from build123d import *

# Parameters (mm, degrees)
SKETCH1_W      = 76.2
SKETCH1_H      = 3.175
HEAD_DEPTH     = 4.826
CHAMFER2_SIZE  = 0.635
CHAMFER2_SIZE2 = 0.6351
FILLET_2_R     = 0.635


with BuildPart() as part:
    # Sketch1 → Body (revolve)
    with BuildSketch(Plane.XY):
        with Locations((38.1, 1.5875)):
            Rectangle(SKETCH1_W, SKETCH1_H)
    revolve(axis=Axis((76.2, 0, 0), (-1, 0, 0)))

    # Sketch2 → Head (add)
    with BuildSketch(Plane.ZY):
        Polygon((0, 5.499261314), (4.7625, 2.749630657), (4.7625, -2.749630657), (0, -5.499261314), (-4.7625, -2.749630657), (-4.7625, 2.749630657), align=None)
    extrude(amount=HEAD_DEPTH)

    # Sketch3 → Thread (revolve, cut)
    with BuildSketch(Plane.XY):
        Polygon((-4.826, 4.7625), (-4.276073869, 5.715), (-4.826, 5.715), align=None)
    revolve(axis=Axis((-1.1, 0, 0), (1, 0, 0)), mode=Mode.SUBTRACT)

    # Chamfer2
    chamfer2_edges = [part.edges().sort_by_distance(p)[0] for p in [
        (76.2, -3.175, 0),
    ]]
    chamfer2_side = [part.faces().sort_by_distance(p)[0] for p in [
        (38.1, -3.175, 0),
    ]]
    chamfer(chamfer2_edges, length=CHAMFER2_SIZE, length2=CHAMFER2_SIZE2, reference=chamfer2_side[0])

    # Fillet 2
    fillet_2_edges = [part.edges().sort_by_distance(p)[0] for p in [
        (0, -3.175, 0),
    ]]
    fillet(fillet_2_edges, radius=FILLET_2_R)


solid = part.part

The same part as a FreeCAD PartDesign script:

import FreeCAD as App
import Part
import Sketcher

V = App.Vector
Q = App.Units.Quantity


def edges_at(feature, points):
    """Names of the edges that pass closest to the given points."""
    edges = feature.Shape.Edges
    near = lambda p: min(range(len(edges)), key=lambda i: edges[i].distToShape(Part.Vertex(*p))[0])
    return sorted({f"Edge{near(p) + 1}" for p in points})


def add_polygon(sketch, points):
    """Adds a closed chain of lines whose ends are joined by coincident constraints."""
    first, n = sketch.GeometryCount, len(points)
    for a, b in zip(points, points[1:] + points[:1]):
        sketch.addGeometry(Part.LineSegment(App.Vector(*a, 0), App.Vector(*b, 0)), False)
    for i in range(n):
        sketch.addConstraint(Sketcher.Constraint("Coincident", first + i, 2, first + (i + 1) % n, 1))

doc = App.newDocument("Part")
body = doc.addObject("PartDesign::Body", "Body")

# Sketch on XY plane
sketch1 = body.newObject("Sketcher::SketchObject", "Sketch")
sketch1.AttachmentSupport = (doc.getObject("XY_Plane"), [""])
sketch1.MapMode = "FlatFace"
add_polygon(sketch1, [(0, 3.175), (0, 0), (76.2, 0), (76.2, 3.175)])  # lines 0-3
sketch1.addConstraint(Sketcher.Constraint("Vertical", 0))
sketch1.addConstraint(Sketcher.Constraint("Horizontal", 1))
sketch1.addConstraint(Sketcher.Constraint("Vertical", 2))
sketch1.addConstraint(Sketcher.Constraint("Horizontal", 3))
sketch1.addConstraint(Sketcher.Constraint("Coincident", 0, 2, -1, 1))
sketch1.addConstraint(Sketcher.Constraint("DistanceX", 1, 1, 1, 2, Q("3 in")))
sketch1.addConstraint(Sketcher.Constraint("DistanceY", 0, 2, 0, 1, Q("0.125 in")))
revolution = body.newObject("PartDesign::Revolution", "Revolution")
revolution.Profile = sketch1
revolution.ReferenceAxis = (sketch1, ["H_Axis"])
revolution.Angle = 360

# Sketch on YZ plane
sketch2 = body.newObject("Sketcher::SketchObject", "Sketch001")
sketch2.AttachmentSupport = (doc.getObject("YZ_Plane"), [""])
sketch2.MapMode = "FlatFace"
add_polygon(sketch2, [(2.749631, 4.7625), (5.499261, 0), (2.749631, -4.7625), (-2.749631, -4.7625), (-5.499261, 0), (-2.749631, 4.7625)])  # lines 0-5
sketch2.addConstraint(Sketcher.Constraint("Horizontal", 2))
sketch2.addConstraint(Sketcher.Constraint("Horizontal", 5))
sketch2.addConstraint(Sketcher.Constraint("Symmetric", 0, 2, 3, 2, -1, 1))
sketch2.addConstraint(Sketcher.Constraint("Symmetric", 1, 2, 4, 2, -1, 1))
sketch2.addConstraint(Sketcher.Constraint("PointOnObject", 0, 2, -1))
sketch2.addConstraint(Sketcher.Constraint("Parallel", 0, 3))
sketch2.addConstraint(Sketcher.Constraint("Vertical", 2, 2, 4, 2))
sketch2.addConstraint(Sketcher.Constraint("Angle", 0, Q("-60 deg")))
sketch2.addConstraint(Sketcher.Constraint("DistanceY", 1, 2, -1, 1, Q("0.1875 in")))
sketch2.addConstraint(Sketcher.Constraint("DistanceX", 2, 2, 2, 1, Q("5.499261 mm")))
pad1 = body.newObject("PartDesign::Pad", "Pad")
pad1.Profile = sketch2
pad1.Length = Q("0.19 in")
pad1.Reversed = True

# Sketch on XY plane
sketch3 = body.newObject("Sketcher::SketchObject", "Sketch002")
sketch3.AttachmentSupport = (doc.getObject("XY_Plane"), [""])
sketch3.MapMode = "FlatFace"
add_polygon(sketch3, [(-4.826, 4.7625), (-4.276074, 5.715), (-4.826, 5.715)])  # lines 0-2
sketch3.addConstraint(Sketcher.Constraint("Horizontal", 1))
sketch3.addConstraint(Sketcher.Constraint("Vertical", 2))
sketch3.addConstraint(Sketcher.Constraint("Angle", 0, Q("60 deg")))
sketch3.addConstraint(Sketcher.Constraint("DistanceX", 1, 2, -1, 1, Q("0.19 in")))
sketch3.addConstraint(Sketcher.Constraint("DistanceY", 2, 2, 2, 1, Q("0.0375 in")))
sketch3.addConstraint(Sketcher.Constraint("DistanceY", -1, 1, 0, 2, Q("0.225 in")))
groove = body.newObject("PartDesign::Groove", "Groove")
groove.Profile = sketch3
groove.ReferenceAxis = (sketch3, ["H_Axis"])
groove.Angle = 360
doc.recompute()

chamfer = body.newObject("PartDesign::Chamfer", "Chamfer")
chamfer.Base = (groove, edges_at(groove, [(76.2, -3.175, 0)]))
chamfer.ChamferType = "Two distances"
chamfer.Size = Q("0.025 in")
chamfer.Size2 = 0.6351
doc.recompute()

fillet = body.newObject("PartDesign::Fillet", "Fillet")
fillet.Base = (chamfer, edges_at(chamfer, [(0, -3.175, 0)]))
fillet.Radius = Q("0.025 in")

doc.recompute()
